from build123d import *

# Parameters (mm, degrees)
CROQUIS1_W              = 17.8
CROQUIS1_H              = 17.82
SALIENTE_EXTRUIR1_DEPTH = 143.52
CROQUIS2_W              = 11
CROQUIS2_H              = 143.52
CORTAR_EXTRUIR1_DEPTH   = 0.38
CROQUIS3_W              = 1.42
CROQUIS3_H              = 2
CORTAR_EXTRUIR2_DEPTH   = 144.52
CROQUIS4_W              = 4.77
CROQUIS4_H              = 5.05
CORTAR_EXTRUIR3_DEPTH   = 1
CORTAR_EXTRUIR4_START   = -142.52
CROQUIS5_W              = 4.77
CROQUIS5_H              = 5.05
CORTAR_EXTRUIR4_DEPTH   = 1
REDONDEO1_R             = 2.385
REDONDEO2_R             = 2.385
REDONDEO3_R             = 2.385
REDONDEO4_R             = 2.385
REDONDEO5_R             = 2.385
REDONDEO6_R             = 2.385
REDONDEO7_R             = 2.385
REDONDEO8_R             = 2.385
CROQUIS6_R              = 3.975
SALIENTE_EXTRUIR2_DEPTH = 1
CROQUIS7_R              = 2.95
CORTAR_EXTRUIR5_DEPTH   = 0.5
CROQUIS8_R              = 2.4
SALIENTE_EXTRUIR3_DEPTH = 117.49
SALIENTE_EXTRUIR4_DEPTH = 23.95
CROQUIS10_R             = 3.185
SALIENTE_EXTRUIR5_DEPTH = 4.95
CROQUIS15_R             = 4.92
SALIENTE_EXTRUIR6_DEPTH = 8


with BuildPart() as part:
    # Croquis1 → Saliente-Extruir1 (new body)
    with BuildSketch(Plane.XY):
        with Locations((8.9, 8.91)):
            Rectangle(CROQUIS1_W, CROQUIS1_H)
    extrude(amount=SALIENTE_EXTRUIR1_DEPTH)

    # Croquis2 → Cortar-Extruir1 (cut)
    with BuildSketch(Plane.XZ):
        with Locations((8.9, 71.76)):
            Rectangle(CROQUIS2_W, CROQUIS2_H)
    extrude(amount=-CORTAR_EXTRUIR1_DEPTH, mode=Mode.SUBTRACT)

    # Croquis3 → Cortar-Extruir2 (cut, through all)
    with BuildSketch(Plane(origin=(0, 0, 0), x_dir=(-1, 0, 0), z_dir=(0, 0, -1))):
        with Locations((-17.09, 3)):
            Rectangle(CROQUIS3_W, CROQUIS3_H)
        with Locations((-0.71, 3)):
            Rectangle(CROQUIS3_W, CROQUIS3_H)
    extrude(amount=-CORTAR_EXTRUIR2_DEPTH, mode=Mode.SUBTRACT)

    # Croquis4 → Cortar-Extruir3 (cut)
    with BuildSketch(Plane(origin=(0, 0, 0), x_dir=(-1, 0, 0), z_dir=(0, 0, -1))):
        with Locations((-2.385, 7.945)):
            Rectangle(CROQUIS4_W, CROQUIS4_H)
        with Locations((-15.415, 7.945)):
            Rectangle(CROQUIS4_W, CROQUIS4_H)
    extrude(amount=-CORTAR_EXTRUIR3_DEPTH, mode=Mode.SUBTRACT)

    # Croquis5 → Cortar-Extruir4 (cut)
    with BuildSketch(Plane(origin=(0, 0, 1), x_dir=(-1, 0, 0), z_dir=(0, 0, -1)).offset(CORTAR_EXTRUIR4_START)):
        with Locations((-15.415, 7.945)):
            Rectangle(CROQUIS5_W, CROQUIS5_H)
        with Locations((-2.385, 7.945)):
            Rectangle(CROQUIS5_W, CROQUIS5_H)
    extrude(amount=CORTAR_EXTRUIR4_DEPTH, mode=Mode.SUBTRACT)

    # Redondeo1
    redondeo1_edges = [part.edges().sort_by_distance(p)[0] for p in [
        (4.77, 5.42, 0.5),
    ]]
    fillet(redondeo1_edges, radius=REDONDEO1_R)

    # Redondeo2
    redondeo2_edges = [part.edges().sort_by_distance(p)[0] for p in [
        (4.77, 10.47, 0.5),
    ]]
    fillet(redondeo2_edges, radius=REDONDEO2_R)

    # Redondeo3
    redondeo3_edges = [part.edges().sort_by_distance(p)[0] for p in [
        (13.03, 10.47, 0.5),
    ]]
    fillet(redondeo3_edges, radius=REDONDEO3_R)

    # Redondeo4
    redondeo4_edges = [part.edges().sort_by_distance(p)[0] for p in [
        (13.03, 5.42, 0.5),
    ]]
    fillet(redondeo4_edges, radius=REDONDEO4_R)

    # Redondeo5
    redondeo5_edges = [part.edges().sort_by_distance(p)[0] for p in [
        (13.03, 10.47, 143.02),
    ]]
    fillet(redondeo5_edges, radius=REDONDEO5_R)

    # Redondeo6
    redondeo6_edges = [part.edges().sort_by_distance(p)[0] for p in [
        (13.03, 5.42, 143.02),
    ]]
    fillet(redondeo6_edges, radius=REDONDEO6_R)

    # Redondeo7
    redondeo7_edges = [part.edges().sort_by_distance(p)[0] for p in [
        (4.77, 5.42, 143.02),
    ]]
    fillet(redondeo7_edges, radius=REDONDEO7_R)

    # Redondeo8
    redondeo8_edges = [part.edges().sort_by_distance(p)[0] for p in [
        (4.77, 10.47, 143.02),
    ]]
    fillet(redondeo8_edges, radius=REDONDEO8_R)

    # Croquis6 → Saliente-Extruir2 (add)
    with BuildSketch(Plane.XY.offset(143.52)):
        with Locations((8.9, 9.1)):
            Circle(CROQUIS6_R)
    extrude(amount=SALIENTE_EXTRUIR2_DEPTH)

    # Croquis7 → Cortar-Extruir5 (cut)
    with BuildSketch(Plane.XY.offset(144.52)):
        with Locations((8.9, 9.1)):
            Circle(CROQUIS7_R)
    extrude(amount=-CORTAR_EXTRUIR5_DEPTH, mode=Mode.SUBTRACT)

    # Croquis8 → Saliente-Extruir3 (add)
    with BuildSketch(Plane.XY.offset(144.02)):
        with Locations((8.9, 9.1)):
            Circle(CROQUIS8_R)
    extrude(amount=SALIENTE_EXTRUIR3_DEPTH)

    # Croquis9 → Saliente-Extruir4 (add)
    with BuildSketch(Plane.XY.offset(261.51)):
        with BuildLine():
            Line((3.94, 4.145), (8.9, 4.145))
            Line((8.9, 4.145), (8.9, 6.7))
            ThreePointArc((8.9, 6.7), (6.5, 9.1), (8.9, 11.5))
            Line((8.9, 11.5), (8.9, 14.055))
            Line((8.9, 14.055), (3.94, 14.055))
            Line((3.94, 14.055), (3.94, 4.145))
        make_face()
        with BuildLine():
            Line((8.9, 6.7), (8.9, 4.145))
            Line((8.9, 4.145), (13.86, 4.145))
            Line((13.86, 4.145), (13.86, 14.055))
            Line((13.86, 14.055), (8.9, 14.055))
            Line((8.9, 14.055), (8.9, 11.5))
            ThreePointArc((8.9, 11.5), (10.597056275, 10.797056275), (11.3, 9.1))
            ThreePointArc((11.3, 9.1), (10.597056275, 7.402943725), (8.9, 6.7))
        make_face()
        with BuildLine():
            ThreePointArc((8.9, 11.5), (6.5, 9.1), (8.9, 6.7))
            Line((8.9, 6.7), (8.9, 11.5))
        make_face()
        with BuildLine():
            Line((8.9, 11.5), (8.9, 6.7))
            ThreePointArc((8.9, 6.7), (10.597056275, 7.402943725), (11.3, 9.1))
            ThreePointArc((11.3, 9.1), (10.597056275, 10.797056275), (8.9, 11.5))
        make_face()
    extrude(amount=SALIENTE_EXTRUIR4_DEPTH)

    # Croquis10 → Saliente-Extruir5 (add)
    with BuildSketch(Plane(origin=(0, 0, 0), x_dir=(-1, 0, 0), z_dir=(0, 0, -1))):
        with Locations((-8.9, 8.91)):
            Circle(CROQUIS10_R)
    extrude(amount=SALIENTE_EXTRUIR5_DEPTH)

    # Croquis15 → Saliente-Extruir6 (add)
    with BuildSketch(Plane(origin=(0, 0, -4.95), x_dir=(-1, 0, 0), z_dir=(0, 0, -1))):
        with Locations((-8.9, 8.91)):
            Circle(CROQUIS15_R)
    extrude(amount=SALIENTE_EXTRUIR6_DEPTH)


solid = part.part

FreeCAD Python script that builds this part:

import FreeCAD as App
import Part
import Sketcher

V = App.Vector
Q = App.Units.Quantity


def edges_at(feature, points):
    """Names of the edges that pass closest to the given points."""
    edges = feature.Shape.Edges
    near = lambda p: min(range(len(edges)), key=lambda i: edges[i].distToShape(Part.Vertex(*p))[0])
    return sorted({f"Edge{near(p) + 1}" for p in points})


def add_polygon(sketch, points):
    """Adds a closed chain of lines whose ends are joined by coincident constraints."""
    first, n = sketch.GeometryCount, len(points)
    for a, b in zip(points, points[1:] + points[:1]):
        sketch.addGeometry(Part.LineSegment(App.Vector(*a, 0), App.Vector(*b, 0)), False)
    for i in range(n):
        sketch.addConstraint(Sketcher.Constraint("Coincident", first + i, 2, first + (i + 1) % n, 1))

doc = App.newDocument("Part")
body = doc.addObject("PartDesign::Body", "Body")

sketch1 = body.newObject("Sketcher::SketchObject", "Sketch")
sketch1.AttachmentSupport = (doc.getObject("XY_Plane"), [""])
sketch1.MapMode = "FlatFace"
add_polygon(sketch1, [(0, 18), (0, 0), (18, 0), (18, 18)])
sketch1.addConstraint([
    Sketcher.Constraint("Vertical", 0),
    Sketcher.Constraint("Horizontal", 1),
    Sketcher.Constraint("Vertical", 2),
    Sketcher.Constraint("Horizontal", 3),
    Sketcher.Constraint("Coincident", 0, 2, -1, 1),
    Sketcher.Constraint("DistanceX", 1, 1, 1, 2, Q("17.8 mm")),
    Sketcher.Constraint("DistanceY", 0, 2, 0, 1, Q("17.82 mm")),
])
pad1 = body.newObject("PartDesign::Pad", "Pad")
pad1.Profile = sketch1
pad1.Length = 143.52

sketch2 = body.newObject("Sketcher::SketchObject", "Sketch001")
sketch2.AttachmentSupport = (doc.getObject("XZ_Plane"), [""])
sketch2.MapMode = "FlatFace"
add_polygon(sketch2, [(3, 144), (3, 0), (14, 0), (14, 144)])
sketch2.addConstraint([
    Sketcher.Constraint("Vertical", 0),
    Sketcher.Constraint("Horizontal", 1),
    Sketcher.Constraint("Vertical", 2),
    Sketcher.Constraint("Horizontal", 3),
    Sketcher.Constraint("PointOnObject", 0, 2, -1),
    Sketcher.Constraint("DistanceX", 1, 1, 1, 2, Q("11 mm")),
    Sketcher.Constraint("DistanceY", 0, 2, 0, 1, Q("143.52 mm")),
    Sketcher.Constraint("DistanceX", -1, 1, 0, 2, Q("3.4 mm")),
])
pocket1 = body.newObject("PartDesign::Pocket", "Pocket")
pocket1.Profile = sketch2
pocket1.Length = 0.38

sketch3 = body.newObject("Sketcher::SketchObject", "Sketch002")
sketch3.AttachmentSupport = (doc.getObject("XY_Plane"), [""])
sketch3.MapMode = "FlatFace"
add_polygon(sketch3, [(17.8, 4), (17.8, 2), (16.4, 2), (16.4, 4)])
add_polygon(sketch3, [(1.4, 4), (1.4, 2), (0, 2), (0, 4)])
sketch3.addConstraint([
    Sketcher.Constraint("Vertical", 0),
    Sketcher.Constraint("Horizontal", 1),
    Sketcher.Constraint("Vertical", 2),
    Sketcher.Constraint("Horizontal", 3),
    Sketcher.Constraint("Vertical", 4),
    Sketcher.Constraint("Horizontal", 5),
    Sketcher.Constraint("Vertical", 6),
    Sketcher.Constraint("Horizontal", 7),
    Sketcher.Constraint("PointOnObject", 5, 2, -2),
    Sketcher.Constraint("Horizontal", 1, 2, 4, 2),
    Sketcher.Constraint("Horizontal", 3, 2, 6, 2),
    Sketcher.Constraint("Equal", 3, 5),
    Sketcher.Constraint("DistanceY", 0, 2, 0, 1, Q("2 mm")),
    Sketcher.Constraint("DistanceY", -1, 1, 0, 2, Q("2 mm")),
    Sketcher.Constraint("DistanceX", 1, 2, 1, 1, Q("1.42 mm")),
    Sketcher.Constraint("DistanceX", -1, 1, 0, 2, Q("17.8 mm")),
])
pocket2 = body.newObject("PartDesign::Pocket", "Pocket001")
pocket2.Profile = sketch3
pocket2.Type = "ThroughAll"
pocket2.Reversed = True

sketch4 = body.newObject("Sketcher::SketchObject", "Sketch003")
sketch4.AttachmentSupport = (doc.getObject("XY_Plane"), [""])
sketch4.MapMode = "FlatFace"
add_polygon(sketch4, [(4.8, 10.5), (4.8, 5.4), (0, 5.4), (0, 10.5)])
add_polygon(sketch4, [(17.8, 10.5), (17.8, 5.4), (13, 5.4), (13, 10.5)])
sketch4.addConstraint([
    Sketcher.Constraint("Vertical", 0),
    Sketcher.Constraint("Horizontal", 1),
    Sketcher.Constraint("Vertical", 2),
    Sketcher.Constraint("Horizontal", 3),
    Sketcher.Constraint("Vertical", 4),
    Sketcher.Constraint("Horizontal", 5),
    Sketcher.Constraint("Vertical", 6),
    Sketcher.Constraint("Horizontal", 7),
    Sketcher.Constraint("PointOnObject", 1, 2, -2),
    Sketcher.Constraint("Horizontal", 1, 2, 4, 2),
    Sketcher.Constraint("Horizontal", 3, 2, 6, 2),
    Sketcher.Constraint("Equal", 3, 5),
    Sketcher.Constraint("DistanceX", 1, 2, 1, 1, Q("4.77 mm")),
    Sketcher.Constraint("DistanceY", 0, 2, 0, 1, Q("5.05 mm")),
    Sketcher.Constraint("DistanceX", -1, 1, 4, 2, Q("17.8 mm")),
    Sketcher.Constraint("DistanceY", -1, 1, 0, 2, Q("5.42 mm")),
])
pocket3 = body.newObject("PartDesign::Pocket", "Pocket002")
pocket3.Profile = sketch4
pocket3.Length = 1
pocket3.Reversed = True

sketch5 = body.newObject("Sketcher::SketchObject", "Sketch004")
sketch5.AttachmentSupport = (doc.getObject("XY_Plane"), [""])
sketch5.MapMode = "FlatFace"
sketch5.AttachmentOffset = App.Placement(V(0, 0, 143.52), App.Rotation())
add_polygon(sketch5, [(17.8, 10.5), (17.8, 5.4), (13, 5.4), (13, 10.5)])
add_polygon(sketch5, [(4.8, 10.5), (4.8, 5.4), (0, 5.4), (0, 10.5)])
sketch5.addConstraint([
    Sketcher.Constraint("Vertical", 0),
    Sketcher.Constraint("Horizontal", 1),
    Sketcher.Constraint("Vertical", 2),
    Sketcher.Constraint("Horizontal", 3),
    Sketcher.Constraint("Vertical", 4),
    Sketcher.Constraint("Horizontal", 5),
    Sketcher.Constraint("Vertical", 6),
    Sketcher.Constraint("Horizontal", 7),
    Sketcher.Constraint("PointOnObject", 5, 2, -2),
    Sketcher.Constraint("Horizontal", 1, 2, 4, 2),
    Sketcher.Constraint("Horizontal", 3, 2, 6, 2),
    Sketcher.Constraint("Equal", 3, 5),
    Sketcher.Constraint("DistanceX", 1, 2, 1, 1, Q("4.77 mm")),
    Sketcher.Constraint("DistanceY", 0, 2, 0, 1, Q("5.05 mm")),
    Sketcher.Constraint("DistanceX", -1, 1, 0, 2, Q("17.8 mm")),
    Sketcher.Constraint("DistanceY", -1, 1, 0, 2, Q("5.42 mm")),
])
pocket4 = body.newObject("PartDesign::Pocket", "Pocket003")
pocket4.Profile = sketch5
pocket4.Length = 1
doc.recompute()

fillet = body.newObject("PartDesign::Fillet", "Fillet")
fillet.Base = (pocket4, edges_at(pocket4, [(4.77, 5.42, 0.5)]))
fillet.Radius = 2.385
doc.recompute()

fillet2 = body.newObject("PartDesign::Fillet", "Fillet001")
fillet2.Base = (fillet, edges_at(fillet, [(4.77, 10.47, 0.5)]))
fillet2.Radius = 2.385
doc.recompute()

fillet3 = body.newObject("PartDesign::Fillet", "Fillet002")
fillet3.Base = (fillet2, edges_at(fillet2, [(13.03, 10.47, 0.5)]))
fillet3.Radius = 2.385
doc.recompute()

fillet4 = body.newObject("PartDesign::Fillet", "Fillet003")
fillet4.Base = (fillet3, edges_at(fillet3, [(13.03, 5.42, 0.5)]))
fillet4.Radius = 2.385
doc.recompute()

fillet5 = body.newObject("PartDesign::Fillet", "Fillet004")
fillet5.Base = (fillet4, edges_at(fillet4, [(13.03, 10.47, 143.02)]))
fillet5.Radius = 2.385
doc.recompute()

fillet6 = body.newObject("PartDesign::Fillet", "Fillet005")
fillet6.Base = (fillet5, edges_at(fillet5, [(13.03, 5.42, 143.02)]))
fillet6.Radius = 2.385
doc.recompute()

fillet7 = body.newObject("PartDesign::Fillet", "Fillet006")
fillet7.Base = (fillet6, edges_at(fillet6, [(4.77, 5.42, 143.02)]))
fillet7.Radius = 2.385
doc.recompute()

fillet8 = body.newObject("PartDesign::Fillet", "Fillet007")
fillet8.Base = (fillet7, edges_at(fillet7, [(4.77, 10.47, 143.02)]))
fillet8.Radius = 2.385

sketch6 = body.newObject("Sketcher::SketchObject", "Sketch005")
sketch6.AttachmentSupport = (doc.getObject("XY_Plane"), [""])
sketch6.MapMode = "FlatFace"
sketch6.AttachmentOffset = App.Placement(V(0, 0, 143.52), App.Rotation())
sketch6.addGeometry(Part.Circle(V(8.9, 9.1, 0), V(0, 0, 1), 4), False)
sketch6.addConstraint([
    Sketcher.Constraint("Diameter", 0, Q("7.95 mm")),
    Sketcher.Constraint("DistanceX", -1, 1, 0, 3, Q("8.9 mm")),
    Sketcher.Constraint("DistanceY", -1, 1, 0, 3, Q("9.1 mm")),
])
pad2 = body.newObject("PartDesign::Pad", "Pad001")
pad2.Profile = sketch6
pad2.Length = 1

sketch7 = body.newObject("Sketcher::SketchObject", "Sketch006")
sketch7.AttachmentSupport = (doc.getObject("XY_Plane"), [""])
sketch7.MapMode = "FlatFace"
sketch7.AttachmentOffset = App.Placement(V(0, 0, 144.52), App.Rotation())
sketch7.addGeometry(Part.Circle(V(8.9, 9.1, 0), V(0, 0, 1), 3), False)
sketch7.addConstraint([
    Sketcher.Constraint("Diameter", 0, Q("5.9 mm")),
    Sketcher.Constraint("DistanceX", -1, 1, 0, 3, Q("8.9 mm")),
    Sketcher.Constraint("DistanceY", -1, 1, 0, 3, Q("9.1 mm")),
])
pocket5 = body.newObject("PartDesign::Pocket", "Pocket004")
pocket5.Profile = sketch7
pocket5.Length = 0.5

sketch8 = body.newObject("Sketcher::SketchObject", "Sketch007")
sketch8.AttachmentSupport = (doc.getObject("XY_Plane"), [""])
sketch8.MapMode = "FlatFace"
sketch8.AttachmentOffset = App.Placement(V(0, 0, 144.02), App.Rotation())
sketch8.addGeometry(Part.Circle(V(8.9, 9.1, 0), V(0, 0, 1), 2.4), False)
sketch8.addConstraint([
    Sketcher.Constraint("Diameter", 0, Q("4.8 mm")),
    Sketcher.Constraint("DistanceX", -1, 1, 0, 3, Q("8.9 mm")),
    Sketcher.Constraint("DistanceY", -1, 1, 0, 3, Q("9.1 mm")),
])
pad3 = body.newObject("PartDesign::Pad", "Pad002")
pad3.Profile = sketch8
pad3.Length = 117.49

sketch9 = body.newObject("Sketcher::SketchObject", "Sketch008")
sketch9.AttachmentSupport = (doc.getObject("XY_Plane"), [""])
sketch9.MapMode = "FlatFace"
sketch9.AttachmentOffset = App.Placement(V(0, 0, 261.51), App.Rotation())
add_polygon(sketch9, [(4, 4), (14, 4), (14, 14), (4, 14)])
sketch9.addConstraint([
    Sketcher.Constraint("Horizontal", 0),
    Sketcher.Constraint("Vertical", 1),
    Sketcher.Constraint("Horizontal", 2),
    Sketcher.Constraint("Vertical", 3),
    Sketcher.Constraint("DistanceX", 0, 1, 0, 2, Q("9.92 mm")),
    Sketcher.Constraint("DistanceY", 1, 1, 1, 2, Q("9.91 mm")),
    Sketcher.Constraint("DistanceX", -1, 1, 0, 2, Q("13.86 mm")),
    Sketcher.Constraint("DistanceY", -1, 1, 0, 2, Q("4.145 mm")),
])
pad4 = body.newObject("PartDesign::Pad", "Pad003")
pad4.Profile = sketch9
pad4.Length = 23.95

sketch10 = body.newObject("Sketcher::SketchObject", "Sketch009")
sketch10.AttachmentSupport = (doc.getObject("XY_Plane"), [""])
sketch10.MapMode = "FlatFace"
sketch10.addGeometry(Part.Circle(V(8.9, 8.9, 0), V(0, 0, 1), 3.2), False)
sketch10.addConstraint([
    Sketcher.Constraint("Diameter", 0, Q("6.37 mm")),
    Sketcher.Constraint("DistanceX", -1, 1, 0, 3, Q("8.9 mm")),
    Sketcher.Constraint("DistanceY", -1, 1, 0, 3, Q("8.91 mm")),
])
pad5 = body.newObject("PartDesign::Pad", "Pad004")
pad5.Profile = sketch10
pad5.Length = 4.95
pad5.Reversed = True

sketch11 = body.newObject("Sketcher::SketchObject", "Sketch010")
sketch11.AttachmentSupport = (doc.getObject("XY_Plane"), [""])
sketch11.MapMode = "FlatFace"
sketch11.AttachmentOffset = App.Placement(V(0, 0, -4.95), App.Rotation())
sketch11.addGeometry(Part.Circle(V(8.9, 8.9, 0), V(0, 0, 1), 4.9), False)
sketch11.addConstraint([
    Sketcher.Constraint("Diameter", 0, Q("9.84 mm")),
    Sketcher.Constraint("DistanceX", -1, 1, 0, 3, Q("8.9 mm")),
    Sketcher.Constraint("DistanceY", -1, 1, 0, 3, Q("8.91 mm")),
])
pad6 = body.newObject("PartDesign::Pad", "Pad005")
pad6.Profile = sketch11
pad6.Length = 8
pad6.Reversed = True

doc.recompute()
